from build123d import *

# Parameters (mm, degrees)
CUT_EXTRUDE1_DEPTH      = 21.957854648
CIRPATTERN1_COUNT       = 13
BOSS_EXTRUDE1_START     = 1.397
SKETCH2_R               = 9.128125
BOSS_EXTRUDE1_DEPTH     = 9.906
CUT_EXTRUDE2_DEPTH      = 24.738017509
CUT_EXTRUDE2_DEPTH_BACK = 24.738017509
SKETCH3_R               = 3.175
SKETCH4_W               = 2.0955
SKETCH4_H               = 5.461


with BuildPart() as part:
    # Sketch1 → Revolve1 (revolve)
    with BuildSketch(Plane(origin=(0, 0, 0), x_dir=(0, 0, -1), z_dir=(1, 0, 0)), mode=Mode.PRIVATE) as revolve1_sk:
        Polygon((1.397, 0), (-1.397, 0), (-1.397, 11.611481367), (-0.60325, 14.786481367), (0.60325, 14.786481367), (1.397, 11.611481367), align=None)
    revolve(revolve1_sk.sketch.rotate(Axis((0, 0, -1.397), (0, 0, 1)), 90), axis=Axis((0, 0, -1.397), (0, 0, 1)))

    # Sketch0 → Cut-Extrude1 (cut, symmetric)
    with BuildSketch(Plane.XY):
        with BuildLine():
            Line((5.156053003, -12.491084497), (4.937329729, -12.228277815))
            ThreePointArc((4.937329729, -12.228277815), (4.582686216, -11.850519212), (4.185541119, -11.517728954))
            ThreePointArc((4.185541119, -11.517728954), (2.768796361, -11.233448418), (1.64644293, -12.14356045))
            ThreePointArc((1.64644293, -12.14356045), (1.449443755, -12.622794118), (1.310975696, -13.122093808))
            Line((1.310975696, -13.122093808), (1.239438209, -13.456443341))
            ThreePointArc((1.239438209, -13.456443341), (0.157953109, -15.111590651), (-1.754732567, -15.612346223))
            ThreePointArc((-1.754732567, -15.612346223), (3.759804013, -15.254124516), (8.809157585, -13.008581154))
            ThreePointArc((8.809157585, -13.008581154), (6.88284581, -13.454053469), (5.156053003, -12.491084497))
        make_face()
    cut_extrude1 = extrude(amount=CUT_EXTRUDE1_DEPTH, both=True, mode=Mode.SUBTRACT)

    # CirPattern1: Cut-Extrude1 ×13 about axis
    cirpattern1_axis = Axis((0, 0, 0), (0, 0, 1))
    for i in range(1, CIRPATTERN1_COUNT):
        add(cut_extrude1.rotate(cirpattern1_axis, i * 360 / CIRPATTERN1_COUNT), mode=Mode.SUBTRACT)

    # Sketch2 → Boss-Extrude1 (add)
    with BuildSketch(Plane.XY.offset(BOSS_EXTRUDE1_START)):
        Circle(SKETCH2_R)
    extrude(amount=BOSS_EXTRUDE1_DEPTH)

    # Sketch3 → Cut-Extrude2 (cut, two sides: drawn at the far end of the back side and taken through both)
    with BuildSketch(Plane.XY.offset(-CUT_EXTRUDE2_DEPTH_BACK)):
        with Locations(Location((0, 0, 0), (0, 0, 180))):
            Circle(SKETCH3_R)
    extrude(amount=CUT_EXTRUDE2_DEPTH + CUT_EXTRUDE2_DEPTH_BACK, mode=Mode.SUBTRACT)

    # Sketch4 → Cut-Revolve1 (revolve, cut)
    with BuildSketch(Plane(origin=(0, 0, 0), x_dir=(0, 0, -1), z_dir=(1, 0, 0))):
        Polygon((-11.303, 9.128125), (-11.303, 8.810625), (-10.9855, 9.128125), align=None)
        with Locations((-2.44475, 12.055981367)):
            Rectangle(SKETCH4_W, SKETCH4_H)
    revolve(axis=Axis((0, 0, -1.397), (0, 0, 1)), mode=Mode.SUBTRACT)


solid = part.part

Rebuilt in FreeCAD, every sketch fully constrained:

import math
import FreeCAD as App
import Part
import Sketcher
from FreeCAD import Vector
Q = App.Units.Quantity

doc = App.newDocument("Part")
params = doc.addObject("Spreadsheet::Sheet", "Params")
for row, (alias, value) in enumerate([
    ("sketch1_height", "0.11 in"),
    ("revolution_angle", "360 deg"),
    ("pocket1_length", "43.915709 mm"),
    ("sketch3_diameter", "0.71875 in"),
    ("pad1_length", "0.39 in"),
    ("sketch4_diameter", "0.25 in"),
    ("sketch5_width", "0.215 in"),
    ("groove_angle", "360 deg"),
], start=1):
    params.set(f"A{row}", alias)
    params.set(f"B{row}", "=" + value)
    params.setAlias(f"B{row}", alias)

body = doc.addObject("PartDesign::Body", "Body")

sketch1 = body.newObject("Sketcher::SketchObject", "Sketch")
sketch1.AttachmentSupport = (doc.getObject("YZ_Plane"), [""])
sketch1.MapMode = "FlatFace"
sketch1.addGeometry(Part.LineSegment(Vector(0, 1.397, 0), Vector(0, -1.397, 0)), False)
sketch1.addGeometry(Part.LineSegment(Vector(0, -1.397, 0), Vector(11.611481, -1.397, 0)), False)
sketch1.addGeometry(Part.LineSegment(Vector(11.611481, -1.397, 0), Vector(14.786481, -0.60325, 0)), False)
sketch1.addGeometry(Part.LineSegment(Vector(14.786481, -0.60325, 0), Vector(14.786481, 0.60325, 0)), False)
sketch1.addGeometry(Part.LineSegment(Vector(14.786481, 0.60325, 0), Vector(11.611481, 1.397, 0)), False)
sketch1.addGeometry(Part.LineSegment(Vector(11.611481, 1.397, 0), Vector(0, 1.397, 0)), False)
sketch1.addConstraint(Sketcher.Constraint("Coincident", 0, 2, 1, 1))
sketch1.addConstraint(Sketcher.Constraint("Coincident", 1, 2, 2, 1))
sketch1.addConstraint(Sketcher.Constraint("Coincident", 2, 2, 3, 1))
sketch1.addConstraint(Sketcher.Constraint("Coincident", 3, 2, 4, 1))
sketch1.addConstraint(Sketcher.Constraint("Coincident", 4, 2, 5, 1))
sketch1.addConstraint(Sketcher.Constraint("Coincident", 5, 2, 0, 1))
sketch1.addConstraint(Sketcher.Constraint("Vertical", 0))
sketch1.addConstraint(Sketcher.Constraint("Horizontal", 1))
sketch1.addConstraint(Sketcher.Constraint("Vertical", 3))
sketch1.addConstraint(Sketcher.Constraint("Horizontal", 5))
sketch1.addConstraint(Sketcher.Constraint("Symmetric", 0, 2, 5, 2, -1, 1))
sketch1.addConstraint(Sketcher.Constraint("Vertical", 1, 2, 4, 2))
sketch1.addConstraint(Sketcher.Constraint("Equal", 2, 4))
sketch1.addConstraint(Sketcher.Constraint("DistanceY", 0, 2, 0, 1, Q("0.11 in")))
sketch1.addConstraint(Sketcher.Constraint("DistanceY", 3, 1, 3, 2, Q("0.0475 in")))
sketch1.addConstraint(Sketcher.Constraint("DistanceX", 1, 2, 2, 2, Q("0.125 in")))
sketch1.addConstraint(Sketcher.Constraint("DistanceX", 1, 1, 1, 2, 11.611481))
sketch1.setExpression("Constraints[13]", "Params.sketch1_height")
revolution = body.newObject("PartDesign::Revolution", "Revolution")
revolution.Profile = sketch1
revolution.ReferenceAxis = (sketch1, ["V_Axis"])
revolution.setExpression("Angle", "Params.revolution_angle")

sketch2 = body.newObject("Sketcher::SketchObject", "Sketch001")
sketch2.AttachmentSupport = (doc.getObject("XY_Plane"), [""])
sketch2.MapMode = "FlatFace"
sketch2.addGeometry(Part.LineSegment(Vector(5.156053, -12.491084, 0), Vector(4.93733, -12.228278, 0)), False)
sketch2.addGeometry(Part.ArcOfCircle(Part.Circle(Vector(1.602291, -15.003894, 0), Vector(0, 0, 1), 4.338955), math.radians(39.769231), math.radians(53.461538)), False)
sketch2.addGeometry(Part.ArcOfCircle(Part.Circle(Vector(3.175, -12.881481, 0), Vector(0, 0, 1), 1.697355), math.radians(53.461538), math.radians(154.230769)), False)
sketch2.addGeometry(Part.ArcOfCircle(Part.Circle(Vector(5.553899, -14.02991, 0), Vector(0, 0, 1), 4.338955), math.radians(154.230769), math.radians(167.923077)), False)
sketch2.addGeometry(Part.LineSegment(Vector(1.310976, -13.122094, 0), Vector(1.239438, -13.456443, 0)), False)
sketch2.addGeometry(Part.ArcOfCircle(Part.Circle(Vector(-1.4478, -12.881481, 0), Vector(0, 0, 1), 2.748059), math.radians(-96.412784), math.radians(-12.076923)), False)
sketch2.addGeometry(Part.ArcOfCircle(Part.Circle(Vector(0, 0, 0), Vector(0, 0, 1), 15.710647), math.radians(-96.412784), math.radians(-55.894908)), False)
sketch2.addGeometry(Part.ArcOfCircle(Part.Circle(Vector(7.268286, -10.733159, 0), Vector(0, 0, 1), 2.748059), math.radians(-140.230769), math.radians(-55.894908)), False)
sketch2.addConstraint(Sketcher.Constraint("Tangent", 0, 2, 1, 1))
sketch2.addConstraint(Sketcher.Constraint("Tangent", 1, 2, 2, 1))
sketch2.addConstraint(Sketcher.Constraint("Tangent", 2, 2, 3, 1))
sketch2.addConstraint(Sketcher.Constraint("Tangent", 3, 2, 4, 1))
sketch2.addConstraint(Sketcher.Constraint("Tangent", 4, 2, 5, 2))
sketch2.addConstraint(Sketcher.Constraint("Tangent", 5, 1, 6, 1))
sketch2.addConstraint(Sketcher.Constraint("Tangent", 6, 2, 7, 2))
sketch2.addConstraint(Sketcher.Constraint("Tangent", 7, 1, 0, 1))
sketch2.addConstraint(Sketcher.Constraint("Coincident", 6, 3, -1, 1))
sketch2.addConstraint(Sketcher.Constraint("Equal", 1, 3))
sketch2.addConstraint(Sketcher.Constraint("Equal", 5, 7))
sketch2.addConstraint(Sketcher.Constraint("Horizontal", 2, 3, 5, 3))
sketch2.addConstraint(Sketcher.Constraint("Equal", 0, 4))
sketch2.addConstraint(Sketcher.Constraint("DistanceX", -1, 1, 2, 3, Q("0.125 in")))
sketch2.addConstraint(Sketcher.Constraint("DistanceX", 5, 3, -1, 1, Q("0.057 in")))
sketch2.addConstraint(Sketcher.Constraint("Radius", 5, 2.748059))
sketch2.addConstraint(Sketcher.Constraint("Radius", 1, 4.338955))
sketch2.addConstraint(Sketcher.Constraint("Radius", 2, 1.697355))
sketch2.addConstraint(Sketcher.Constraint("Radius", 6, 15.710647))
sketch2.addConstraint(Sketcher.Constraint("DistanceX", -1, 1, 3, 3, 5.553899))
sketch2.addConstraint(Sketcher.Constraint("DistanceX", 2, 2, 1, 2, 2.539098))
pocket1 = body.newObject("PartDesign::Pocket", "Pocket")
pocket1.Profile = sketch2
pocket1.setExpression("Length", "Params.pocket1_length")
pocket1.Midplane = True
doc.recompute()

polarpattern = body.newObject("PartDesign::PolarPattern", "PolarPattern")
polarpattern.Originals = [pocket1]
polarpattern.Axis = (doc.getObject("Z_Axis"), [""])
polarpattern.Angle = 360
polarpattern.Occurrences = 13
body.Tip = polarpattern

sketch3 = body.newObject("Sketcher::SketchObject", "Sketch002")
sketch3.AttachmentSupport = (doc.getObject("XY_Plane"), [""])
sketch3.MapMode = "FlatFace"
sketch3.AttachmentOffset = App.Placement(Vector(0, 0, 0.055 * 25.4), App.Rotation())
sketch3.addGeometry(Part.Circle(Vector(0, 0, 0), Vector(0, 0, 1), 9.128125), False)
sketch3.addConstraint(Sketcher.Constraint("Coincident", 0, 3, -1, 1))
sketch3.addConstraint(Sketcher.Constraint("Diameter", 0, Q("0.71875 in")))
sketch3.setExpression("Constraints[1]", "Params.sketch3_diameter")
pad1 = body.newObject("PartDesign::Pad", "Pad")
pad1.Profile = sketch3
pad1.setExpression("Length", "Params.pad1_length")

sketch4 = body.newObject("Sketcher::SketchObject", "Sketch003")
sketch4.AttachmentSupport = (doc.getObject("XY_Plane"), [""])
sketch4.MapMode = "FlatFace"
sketch4.addGeometry(Part.Circle(Vector(0, 0, 0), Vector(0, 0, 1), 3.175), False)
sketch4.addConstraint(Sketcher.Constraint("Coincident", 0, 3, -1, 1))
sketch4.addConstraint(Sketcher.Constraint("Diameter", 0, Q("0.25 in")))
sketch4.setExpression("Constraints[1]", "Params.sketch4_diameter")
pocket2 = body.newObject("PartDesign::Pocket", "Pocket001")
pocket2.Profile = sketch4
pocket2.Type = "ThroughAll"
pocket2.Midplane = True

sketch5 = body.newObject("Sketcher::SketchObject", "Sketch004")
sketch5.AttachmentSupport = (doc.getObject("YZ_Plane"), [""])
sketch5.MapMode = "FlatFace"
sketch5.addGeometry(Part.LineSegment(Vector(9.128125, 11.303, 0), Vector(8.810625, 11.303, 0)), False)
sketch5.addGeometry(Part.LineSegment(Vector(8.810625, 11.303, 0), Vector(9.128125, 10.9855, 0)), False)
sketch5.addGeometry(Part.LineSegment(Vector(9.128125, 10.9855, 0), Vector(9.128125, 11.303, 0)), False)
sketch5.addGeometry(Part.LineSegment(Vector(14.786481, 3.4925, 0), Vector(9.325481, 3.4925, 0)), False)
sketch5.addGeometry(Part.LineSegment(Vector(9.325481, 3.4925, 0), Vector(9.325481, 1.397, 0)), False)
sketch5.addGeometry(Part.LineSegment(Vector(9.325481, 1.397, 0), Vector(14.786481, 1.397, 0)), False)
sketch5.addGeometry(Part.LineSegment(Vector(14.786481, 1.397, 0), Vector(14.786481, 3.4925, 0)), False)
sketch5.addConstraint(Sketcher.Constraint("Coincident", 0, 2, 1, 1))
sketch5.addConstraint(Sketcher.Constraint("Coincident", 1, 2, 2, 1))
sketch5.addConstraint(Sketcher.Constraint("Coincident", 2, 2, 0, 1))
sketch5.addConstraint(Sketcher.Constraint("Coincident", 3, 2, 4, 1))
sketch5.addConstraint(Sketcher.Constraint("Coincident", 4, 2, 5, 1))
sketch5.addConstraint(Sketcher.Constraint("Coincident", 5, 2, 6, 1))
sketch5.addConstraint(Sketcher.Constraint("Coincident", 6, 2, 3, 1))
sketch5.addConstraint(Sketcher.Constraint("Horizontal", 0))
sketch5.addConstraint(Sketcher.Constraint("Vertical", 2))
sketch5.addConstraint(Sketcher.Constraint("Horizontal", 3))
sketch5.addConstraint(Sketcher.Constraint("Vertical", 4))
sketch5.addConstraint(Sketcher.Constraint("Horizontal", 5))
sketch5.addConstraint(Sketcher.Constraint("Vertical", 6))
sketch5.addConstraint(Sketcher.Constraint("Equal", 0, 2))
sketch5.addConstraint(Sketcher.Constraint("DistanceX", 3, 2, 3, 1, Q("0.215 in")))
sketch5.addConstraint(Sketcher.Constraint("DistanceY", 4, 2, 2, 2, Q("0.39 in")))
sketch5.addConstraint(Sketcher.Constraint("DistanceX", 0, 2, 0, 1, Q("0.0125 in")))
sketch5.addConstraint(Sketcher.Constraint("DistanceY", 4, 2, 4, 1, Q("0.0825 in")))
sketch5.addConstraint(Sketcher.Constraint("DistanceY", -1, 1, 0, 2, Q("0.445 in")))
sketch5.addConstraint(Sketcher.Constraint("DistanceX", -1, 1, 1, 2, Q("0.359375 in")))
sketch5.addConstraint(Sketcher.Constraint("DistanceX", -1, 1, 3, 2, 9.325481))
sketch5.setExpression("Constraints[14]", "Params.sketch5_width")
groove = body.newObject("PartDesign::Groove", "Groove")
groove.Profile = sketch5
groove.ReferenceAxis = (sketch5, ["V_Axis"])
groove.setExpression("Angle", "Params.groove_angle")

doc.recompute()
